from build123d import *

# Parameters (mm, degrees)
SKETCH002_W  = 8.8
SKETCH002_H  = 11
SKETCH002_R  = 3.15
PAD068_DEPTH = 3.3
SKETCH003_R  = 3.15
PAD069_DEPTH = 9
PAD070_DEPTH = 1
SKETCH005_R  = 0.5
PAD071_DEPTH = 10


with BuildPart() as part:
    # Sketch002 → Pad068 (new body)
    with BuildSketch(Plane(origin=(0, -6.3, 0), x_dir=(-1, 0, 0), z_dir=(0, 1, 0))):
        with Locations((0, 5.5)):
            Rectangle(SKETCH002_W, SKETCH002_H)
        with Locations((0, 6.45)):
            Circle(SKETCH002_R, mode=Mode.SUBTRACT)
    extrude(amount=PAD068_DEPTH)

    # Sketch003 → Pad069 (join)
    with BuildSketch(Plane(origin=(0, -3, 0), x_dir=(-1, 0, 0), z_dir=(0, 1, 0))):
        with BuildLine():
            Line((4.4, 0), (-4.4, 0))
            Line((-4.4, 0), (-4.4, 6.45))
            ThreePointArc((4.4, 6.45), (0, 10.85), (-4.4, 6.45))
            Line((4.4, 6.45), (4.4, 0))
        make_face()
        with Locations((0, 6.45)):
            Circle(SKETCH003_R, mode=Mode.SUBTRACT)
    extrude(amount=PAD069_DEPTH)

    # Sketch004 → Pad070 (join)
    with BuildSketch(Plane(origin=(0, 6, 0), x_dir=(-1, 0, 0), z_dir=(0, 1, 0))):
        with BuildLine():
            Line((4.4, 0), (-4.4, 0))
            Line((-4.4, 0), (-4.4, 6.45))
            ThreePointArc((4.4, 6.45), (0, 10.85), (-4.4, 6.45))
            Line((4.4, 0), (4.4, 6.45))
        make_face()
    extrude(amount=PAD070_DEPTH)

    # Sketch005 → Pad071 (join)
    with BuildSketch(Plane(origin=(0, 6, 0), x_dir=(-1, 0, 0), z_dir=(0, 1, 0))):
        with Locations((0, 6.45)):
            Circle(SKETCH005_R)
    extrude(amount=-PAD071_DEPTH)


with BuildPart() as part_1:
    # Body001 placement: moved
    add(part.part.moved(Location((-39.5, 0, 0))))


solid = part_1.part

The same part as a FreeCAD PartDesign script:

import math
import FreeCAD as App
import Part
import Sketcher
Q = App.Units.Quantity


def add_polygon(sketch, points):
    """Adds a closed chain of lines whose ends are joined by coincident constraints."""
    first, n = sketch.GeometryCount, len(points)
    for a, b in zip(points, points[1:] + points[:1]):
        sketch.addGeometry(Part.LineSegment(App.Vector(*a, 0), App.Vector(*b, 0)), False)
    for i in range(n):
        sketch.addConstraint(Sketcher.Constraint("Coincident", first + i, 2, first + (i + 1) % n, 1))

doc = App.newDocument("Part")
body = doc.addObject("PartDesign::Body", "Body")

sketch1 = doc.addObject("Sketcher::SketchObject", "Sketch")
body.addObject(sketch1)
sketch1.AttachmentSupport = (doc.XZ_Plane, [""])
sketch1.MapMode = "FlatFace"
sketch1.AttachmentOffset = App.Placement(App.Vector(0, 0, 6.3), App.Rotation())
add_polygon(sketch1, [(4.4, 11), (4.4, 0), (-4.4, 0), (-4.4, 11)])
sketch1.addGeometry(Part.Circle(App.Vector(0, 6.5, 0), App.Vector(0, 0, 1), 3.1), False)
sketch1.addConstraint([
    Sketcher.Constraint("Vertical", 0),
    Sketcher.Constraint("Horizontal", 1),
    Sketcher.Constraint("Vertical", 2),
    Sketcher.Constraint("Horizontal", 3),
    Sketcher.Constraint("Symmetric", 0, 2, 1, 2, -1, 1),
    Sketcher.Constraint("PointOnObject", 4, 3, -2),
    Sketcher.Constraint("Diameter", 4, Q("6.3 mm")),
    Sketcher.Constraint("DistanceY", 0, 2, 0, 1, Q("11 mm")),
    Sketcher.Constraint("DistanceX", 1, 2, 1, 1, Q("8.8 mm")),
    Sketcher.Constraint("DistanceY", -1, 1, 4, 3, Q("6.45 mm")),
])
pad1 = doc.addObject("PartDesign::Pad", "Pad")
body.addObject(pad1)
pad1.Profile = sketch1
pad1.Length = 3.3
pad1.Reversed = True

sketch2 = doc.addObject("Sketcher::SketchObject", "Sketch001")
body.addObject(sketch2)
sketch2.AttachmentSupport = (doc.XZ_Plane, [""])
sketch2.MapMode = "FlatFace"
sketch2.AttachmentOffset = App.Placement(App.Vector(0, 0, 3), App.Rotation())
sketch2.addGeometry([
    Part.LineSegment(App.Vector(4.4, 0, 0), App.Vector(-4.4, 0, 0)),
    Part.LineSegment(App.Vector(-4.4, 0, 0), App.Vector(-4.4, 6.5, 0)),
    Part.ArcOfCircle(Part.Circle(App.Vector(0, 6.5, 0), App.Vector(0, 0, 1), 4.4), math.radians(0), math.radians(180)),
    Part.LineSegment(App.Vector(4.4, 6.5, 0), App.Vector(4.4, 0, 0)),
    Part.Circle(App.Vector(0, 6.5, 0), App.Vector(0, 0, 1), 3.1),
], False)
sketch2.addConstraint([
    Sketcher.Constraint("Coincident", 0, 2, 1, 1),
    Sketcher.Constraint("Tangent", 1, 2, 2, 2),
    Sketcher.Constraint("Tangent", 2, 1, 3, 1),
    Sketcher.Constraint("Coincident", 3, 2, 0, 1),
    Sketcher.Constraint("Horizontal", 0),
    Sketcher.Constraint("Vertical", 1),
    Sketcher.Constraint("Vertical", 3),
    Sketcher.Constraint("Coincident", 4, 3, 2, 3),
    Sketcher.Constraint("Symmetric", 0, 2, 3, 2, -1, 1),
    Sketcher.Constraint("Diameter", 4, Q("6.3 mm")),
    Sketcher.Constraint("Radius", 2, Q("4.4 mm")),
    Sketcher.Constraint("DistanceY", 1, 1, 1, 2, Q("6.45 mm")),
])
pad2 = doc.addObject("PartDesign::Pad", "Pad001")
body.addObject(pad2)
pad2.Profile = sketch2
pad2.Length = 9
pad2.Reversed = True

sketch3 = doc.addObject("Sketcher::SketchObject", "Sketch002")
body.addObject(sketch3)
sketch3.AttachmentSupport = (doc.XZ_Plane, [""])
sketch3.MapMode = "FlatFace"
sketch3.AttachmentOffset = App.Placement(App.Vector(0, 0, -6), App.Rotation())
sketch3.addGeometry([
    Part.LineSegment(App.Vector(4.4, 0, 0), App.Vector(-4.4, 0, 0)),
    Part.LineSegment(App.Vector(-4.4, 0, 0), App.Vector(-4.4, 6.5, 0)),
    Part.ArcOfCircle(Part.Circle(App.Vector(0, 6.5, 0), App.Vector(0, 0, 1), 4.4), math.radians(0), math.radians(180)),
    Part.LineSegment(App.Vector(4.4, 6.5, 0), App.Vector(4.4, 0, 0)),
], False)
sketch3.addConstraint([
    Sketcher.Constraint("Coincident", 0, 2, 1, 1),
    Sketcher.Constraint("Tangent", 1, 2, 2, 2),
    Sketcher.Constraint("Tangent", 2, 1, 3, 1),
    Sketcher.Constraint("Coincident", 3, 2, 0, 1),
    Sketcher.Constraint("Horizontal", 0),
    Sketcher.Constraint("Vertical", 1),
    Sketcher.Constraint("Vertical", 3),
    Sketcher.Constraint("Symmetric", 0, 2, 3, 2, -1, 1),
    Sketcher.Constraint("Radius", 2, Q("4.4 mm")),
    Sketcher.Constraint("DistanceY", 1, 1, 1, 2, Q("6.45 mm")),
])
pad3 = doc.addObject("PartDesign::Pad", "Pad002")
body.addObject(pad3)
pad3.Profile = sketch3
pad3.Length = 1
pad3.Reversed = True

sketch4 = doc.addObject("Sketcher::SketchObject", "Sketch003")
body.addObject(sketch4)
sketch4.AttachmentSupport = (doc.XZ_Plane, [""])
sketch4.MapMode = "FlatFace"
sketch4.AttachmentOffset = App.Placement(App.Vector(0, 0, -6), App.Rotation())
sketch4.addGeometry(Part.Circle(App.Vector(0, 6.5, 0), App.Vector(0, 0, 1), 0.5), False)
sketch4.addConstraint([
    Sketcher.Constraint("PointOnObject", 0, 3, -2),
    Sketcher.Constraint("Diameter", 0, Q("1 mm")),
    Sketcher.Constraint("DistanceY", -1, 1, 0, 3, Q("6.45 mm")),
])
pad4 = doc.addObject("PartDesign::Pad", "Pad003")
body.addObject(pad4)
pad4.Profile = sketch4
pad4.Length = 10
body2 = doc.addObject("PartDesign::Body", "Body001")
doc.recompute()

body.Placement = App.Placement(App.Vector(-39.5, 0, 0), App.Rotation(App.Vector(0, 0, 1), 0))
boolean = doc.addObject("PartDesign::Boolean", "Boolean")
body2.addObject(boolean)
boolean.Type = "Fuse"
boolean.addObjects([body])

doc.recompute()
